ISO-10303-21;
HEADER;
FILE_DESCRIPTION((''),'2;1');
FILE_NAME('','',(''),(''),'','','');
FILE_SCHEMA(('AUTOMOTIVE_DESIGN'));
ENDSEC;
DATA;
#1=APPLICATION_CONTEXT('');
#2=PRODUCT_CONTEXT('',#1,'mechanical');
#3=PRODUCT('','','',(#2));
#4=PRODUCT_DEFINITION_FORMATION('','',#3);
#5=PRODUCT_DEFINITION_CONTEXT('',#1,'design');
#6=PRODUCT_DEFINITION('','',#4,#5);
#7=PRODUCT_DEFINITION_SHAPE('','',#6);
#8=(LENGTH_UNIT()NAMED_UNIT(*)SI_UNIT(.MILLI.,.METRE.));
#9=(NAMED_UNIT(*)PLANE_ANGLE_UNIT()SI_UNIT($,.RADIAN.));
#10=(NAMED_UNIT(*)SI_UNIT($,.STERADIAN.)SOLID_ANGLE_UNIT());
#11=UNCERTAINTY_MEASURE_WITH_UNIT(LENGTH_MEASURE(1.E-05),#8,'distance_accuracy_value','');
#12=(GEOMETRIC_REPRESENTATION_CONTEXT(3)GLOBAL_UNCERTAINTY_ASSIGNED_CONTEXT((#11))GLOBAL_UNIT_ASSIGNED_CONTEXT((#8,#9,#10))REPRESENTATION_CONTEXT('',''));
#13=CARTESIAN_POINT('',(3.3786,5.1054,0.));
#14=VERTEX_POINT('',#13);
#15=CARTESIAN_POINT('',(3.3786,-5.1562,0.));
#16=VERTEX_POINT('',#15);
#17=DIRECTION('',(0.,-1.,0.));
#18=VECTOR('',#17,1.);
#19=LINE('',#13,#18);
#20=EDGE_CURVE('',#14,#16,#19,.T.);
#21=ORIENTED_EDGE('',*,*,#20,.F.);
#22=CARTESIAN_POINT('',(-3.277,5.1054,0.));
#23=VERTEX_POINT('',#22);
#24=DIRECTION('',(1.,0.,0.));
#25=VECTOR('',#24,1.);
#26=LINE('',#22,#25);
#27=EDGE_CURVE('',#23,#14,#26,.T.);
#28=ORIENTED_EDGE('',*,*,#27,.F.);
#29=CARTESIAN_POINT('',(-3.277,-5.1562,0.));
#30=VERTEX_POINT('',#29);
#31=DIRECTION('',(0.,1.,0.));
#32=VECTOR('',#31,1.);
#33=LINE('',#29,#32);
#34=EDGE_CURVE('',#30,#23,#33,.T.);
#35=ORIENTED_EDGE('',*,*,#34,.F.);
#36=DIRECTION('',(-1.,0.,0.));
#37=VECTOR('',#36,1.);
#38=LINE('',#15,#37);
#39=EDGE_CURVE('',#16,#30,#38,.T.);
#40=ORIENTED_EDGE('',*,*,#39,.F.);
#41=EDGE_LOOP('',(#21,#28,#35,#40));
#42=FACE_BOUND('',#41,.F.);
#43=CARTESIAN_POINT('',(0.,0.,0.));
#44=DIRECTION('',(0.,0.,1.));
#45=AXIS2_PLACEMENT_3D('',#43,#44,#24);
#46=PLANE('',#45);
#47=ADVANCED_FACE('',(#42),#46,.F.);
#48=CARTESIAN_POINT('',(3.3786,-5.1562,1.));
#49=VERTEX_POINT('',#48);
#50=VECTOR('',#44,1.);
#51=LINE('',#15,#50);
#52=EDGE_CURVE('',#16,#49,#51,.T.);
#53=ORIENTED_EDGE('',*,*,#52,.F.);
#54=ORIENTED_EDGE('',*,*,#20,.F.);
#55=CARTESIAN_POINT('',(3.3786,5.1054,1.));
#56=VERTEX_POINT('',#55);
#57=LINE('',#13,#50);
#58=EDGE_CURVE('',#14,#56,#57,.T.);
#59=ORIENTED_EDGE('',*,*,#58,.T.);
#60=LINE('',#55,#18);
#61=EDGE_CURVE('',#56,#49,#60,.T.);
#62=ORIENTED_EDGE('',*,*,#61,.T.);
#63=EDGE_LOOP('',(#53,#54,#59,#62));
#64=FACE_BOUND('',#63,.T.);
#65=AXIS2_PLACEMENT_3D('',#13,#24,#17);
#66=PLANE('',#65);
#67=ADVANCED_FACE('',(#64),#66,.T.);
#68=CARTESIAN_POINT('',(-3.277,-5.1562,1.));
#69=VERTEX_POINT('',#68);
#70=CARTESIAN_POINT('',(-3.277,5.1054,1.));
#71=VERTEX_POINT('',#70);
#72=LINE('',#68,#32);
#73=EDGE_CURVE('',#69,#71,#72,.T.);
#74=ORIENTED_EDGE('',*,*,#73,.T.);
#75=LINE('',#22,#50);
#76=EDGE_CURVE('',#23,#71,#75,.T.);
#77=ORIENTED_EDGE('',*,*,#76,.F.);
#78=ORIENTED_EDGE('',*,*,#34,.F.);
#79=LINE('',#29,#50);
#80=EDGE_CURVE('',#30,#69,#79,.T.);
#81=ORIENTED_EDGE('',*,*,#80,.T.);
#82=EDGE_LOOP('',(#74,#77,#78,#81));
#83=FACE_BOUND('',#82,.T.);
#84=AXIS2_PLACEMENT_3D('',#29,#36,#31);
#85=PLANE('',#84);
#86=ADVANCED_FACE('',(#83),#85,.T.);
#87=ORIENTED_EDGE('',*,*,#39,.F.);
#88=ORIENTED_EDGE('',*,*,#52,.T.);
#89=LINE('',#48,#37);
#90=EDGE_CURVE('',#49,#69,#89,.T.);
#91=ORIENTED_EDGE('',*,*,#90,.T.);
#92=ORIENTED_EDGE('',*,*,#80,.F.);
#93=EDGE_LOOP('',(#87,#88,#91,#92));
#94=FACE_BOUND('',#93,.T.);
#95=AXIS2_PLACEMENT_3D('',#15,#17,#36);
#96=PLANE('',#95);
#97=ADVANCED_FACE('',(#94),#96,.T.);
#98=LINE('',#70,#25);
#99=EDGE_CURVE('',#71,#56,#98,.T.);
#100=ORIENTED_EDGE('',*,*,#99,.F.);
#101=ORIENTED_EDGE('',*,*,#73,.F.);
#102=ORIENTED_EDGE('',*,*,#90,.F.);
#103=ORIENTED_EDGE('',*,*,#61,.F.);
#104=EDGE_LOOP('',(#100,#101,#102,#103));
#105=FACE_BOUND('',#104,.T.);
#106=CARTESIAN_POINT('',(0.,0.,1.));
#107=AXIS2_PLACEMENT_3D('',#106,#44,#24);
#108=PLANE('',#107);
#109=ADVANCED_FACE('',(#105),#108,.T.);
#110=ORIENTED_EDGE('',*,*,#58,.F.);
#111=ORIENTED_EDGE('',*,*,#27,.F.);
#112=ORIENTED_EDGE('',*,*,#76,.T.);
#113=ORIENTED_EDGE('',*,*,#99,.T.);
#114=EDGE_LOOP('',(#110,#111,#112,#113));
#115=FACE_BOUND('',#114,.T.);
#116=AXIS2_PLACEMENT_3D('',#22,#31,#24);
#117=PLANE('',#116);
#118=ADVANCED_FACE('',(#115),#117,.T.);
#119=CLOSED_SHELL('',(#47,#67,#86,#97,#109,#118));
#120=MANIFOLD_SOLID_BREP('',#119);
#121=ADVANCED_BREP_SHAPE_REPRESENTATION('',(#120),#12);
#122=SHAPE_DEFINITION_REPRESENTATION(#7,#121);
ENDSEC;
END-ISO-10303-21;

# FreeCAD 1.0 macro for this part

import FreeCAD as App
import Part
import Sketcher
from FreeCAD import Vector

doc = App.newDocument("Part")
body = doc.addObject("PartDesign::Body", "Body")

sketch1 = body.newObject("Sketcher::SketchObject", "Sketch")
sketch1.AttachmentSupport = (doc.getObject("XY_Plane"), [""])
sketch1.MapMode = "FlatFace"
sketch1.addGeometry(Part.LineSegment(Vector(3, 5, 0), Vector(-3, 5, 0)), False)
sketch1.addGeometry(Part.LineSegment(Vector(-3, 5, 0), Vector(-3, -5, 0)), False)
sketch1.addGeometry(Part.LineSegment(Vector(-3, -5, 0), Vector(3, -5, 0)), False)
sketch1.addGeometry(Part.LineSegment(Vector(3, -5, 0), Vector(3, 5, 0)), False)
sketch1.addConstraint(Sketcher.Constraint("Coincident", 0, 2, 1, 1))
sketch1.addConstraint(Sketcher.Constraint("Coincident", 1, 2, 2, 1))
sketch1.addConstraint(Sketcher.Constraint("Coincident", 2, 2, 3, 1))
sketch1.addConstraint(Sketcher.Constraint("Coincident", 3, 2, 0, 1))
sketch1.addConstraint(Sketcher.Constraint("Horizontal", 0))
sketch1.addConstraint(Sketcher.Constraint("Vertical", 1))
sketch1.addConstraint(Sketcher.Constraint("Horizontal", 2))
sketch1.addConstraint(Sketcher.Constraint("Vertical", 3))
sketch1.addConstraint(Sketcher.Constraint("DistanceX", 0, 2, 0, 1, 6.6556))
sketch1.addConstraint(Sketcher.Constraint("DistanceY", 1, 2, 1, 1, 10.2616))
sketch1.addConstraint(Sketcher.Constraint("DistanceX", 0, 2, -1, 1, 3.277))
sketch1.addConstraint(Sketcher.Constraint("DistanceY", -1, 1, 0, 2, 5.1054))
pad1 = body.newObject("PartDesign::Pad", "Pad")
pad1.Profile = sketch1
pad1.Length = 1

doc.recompute()
